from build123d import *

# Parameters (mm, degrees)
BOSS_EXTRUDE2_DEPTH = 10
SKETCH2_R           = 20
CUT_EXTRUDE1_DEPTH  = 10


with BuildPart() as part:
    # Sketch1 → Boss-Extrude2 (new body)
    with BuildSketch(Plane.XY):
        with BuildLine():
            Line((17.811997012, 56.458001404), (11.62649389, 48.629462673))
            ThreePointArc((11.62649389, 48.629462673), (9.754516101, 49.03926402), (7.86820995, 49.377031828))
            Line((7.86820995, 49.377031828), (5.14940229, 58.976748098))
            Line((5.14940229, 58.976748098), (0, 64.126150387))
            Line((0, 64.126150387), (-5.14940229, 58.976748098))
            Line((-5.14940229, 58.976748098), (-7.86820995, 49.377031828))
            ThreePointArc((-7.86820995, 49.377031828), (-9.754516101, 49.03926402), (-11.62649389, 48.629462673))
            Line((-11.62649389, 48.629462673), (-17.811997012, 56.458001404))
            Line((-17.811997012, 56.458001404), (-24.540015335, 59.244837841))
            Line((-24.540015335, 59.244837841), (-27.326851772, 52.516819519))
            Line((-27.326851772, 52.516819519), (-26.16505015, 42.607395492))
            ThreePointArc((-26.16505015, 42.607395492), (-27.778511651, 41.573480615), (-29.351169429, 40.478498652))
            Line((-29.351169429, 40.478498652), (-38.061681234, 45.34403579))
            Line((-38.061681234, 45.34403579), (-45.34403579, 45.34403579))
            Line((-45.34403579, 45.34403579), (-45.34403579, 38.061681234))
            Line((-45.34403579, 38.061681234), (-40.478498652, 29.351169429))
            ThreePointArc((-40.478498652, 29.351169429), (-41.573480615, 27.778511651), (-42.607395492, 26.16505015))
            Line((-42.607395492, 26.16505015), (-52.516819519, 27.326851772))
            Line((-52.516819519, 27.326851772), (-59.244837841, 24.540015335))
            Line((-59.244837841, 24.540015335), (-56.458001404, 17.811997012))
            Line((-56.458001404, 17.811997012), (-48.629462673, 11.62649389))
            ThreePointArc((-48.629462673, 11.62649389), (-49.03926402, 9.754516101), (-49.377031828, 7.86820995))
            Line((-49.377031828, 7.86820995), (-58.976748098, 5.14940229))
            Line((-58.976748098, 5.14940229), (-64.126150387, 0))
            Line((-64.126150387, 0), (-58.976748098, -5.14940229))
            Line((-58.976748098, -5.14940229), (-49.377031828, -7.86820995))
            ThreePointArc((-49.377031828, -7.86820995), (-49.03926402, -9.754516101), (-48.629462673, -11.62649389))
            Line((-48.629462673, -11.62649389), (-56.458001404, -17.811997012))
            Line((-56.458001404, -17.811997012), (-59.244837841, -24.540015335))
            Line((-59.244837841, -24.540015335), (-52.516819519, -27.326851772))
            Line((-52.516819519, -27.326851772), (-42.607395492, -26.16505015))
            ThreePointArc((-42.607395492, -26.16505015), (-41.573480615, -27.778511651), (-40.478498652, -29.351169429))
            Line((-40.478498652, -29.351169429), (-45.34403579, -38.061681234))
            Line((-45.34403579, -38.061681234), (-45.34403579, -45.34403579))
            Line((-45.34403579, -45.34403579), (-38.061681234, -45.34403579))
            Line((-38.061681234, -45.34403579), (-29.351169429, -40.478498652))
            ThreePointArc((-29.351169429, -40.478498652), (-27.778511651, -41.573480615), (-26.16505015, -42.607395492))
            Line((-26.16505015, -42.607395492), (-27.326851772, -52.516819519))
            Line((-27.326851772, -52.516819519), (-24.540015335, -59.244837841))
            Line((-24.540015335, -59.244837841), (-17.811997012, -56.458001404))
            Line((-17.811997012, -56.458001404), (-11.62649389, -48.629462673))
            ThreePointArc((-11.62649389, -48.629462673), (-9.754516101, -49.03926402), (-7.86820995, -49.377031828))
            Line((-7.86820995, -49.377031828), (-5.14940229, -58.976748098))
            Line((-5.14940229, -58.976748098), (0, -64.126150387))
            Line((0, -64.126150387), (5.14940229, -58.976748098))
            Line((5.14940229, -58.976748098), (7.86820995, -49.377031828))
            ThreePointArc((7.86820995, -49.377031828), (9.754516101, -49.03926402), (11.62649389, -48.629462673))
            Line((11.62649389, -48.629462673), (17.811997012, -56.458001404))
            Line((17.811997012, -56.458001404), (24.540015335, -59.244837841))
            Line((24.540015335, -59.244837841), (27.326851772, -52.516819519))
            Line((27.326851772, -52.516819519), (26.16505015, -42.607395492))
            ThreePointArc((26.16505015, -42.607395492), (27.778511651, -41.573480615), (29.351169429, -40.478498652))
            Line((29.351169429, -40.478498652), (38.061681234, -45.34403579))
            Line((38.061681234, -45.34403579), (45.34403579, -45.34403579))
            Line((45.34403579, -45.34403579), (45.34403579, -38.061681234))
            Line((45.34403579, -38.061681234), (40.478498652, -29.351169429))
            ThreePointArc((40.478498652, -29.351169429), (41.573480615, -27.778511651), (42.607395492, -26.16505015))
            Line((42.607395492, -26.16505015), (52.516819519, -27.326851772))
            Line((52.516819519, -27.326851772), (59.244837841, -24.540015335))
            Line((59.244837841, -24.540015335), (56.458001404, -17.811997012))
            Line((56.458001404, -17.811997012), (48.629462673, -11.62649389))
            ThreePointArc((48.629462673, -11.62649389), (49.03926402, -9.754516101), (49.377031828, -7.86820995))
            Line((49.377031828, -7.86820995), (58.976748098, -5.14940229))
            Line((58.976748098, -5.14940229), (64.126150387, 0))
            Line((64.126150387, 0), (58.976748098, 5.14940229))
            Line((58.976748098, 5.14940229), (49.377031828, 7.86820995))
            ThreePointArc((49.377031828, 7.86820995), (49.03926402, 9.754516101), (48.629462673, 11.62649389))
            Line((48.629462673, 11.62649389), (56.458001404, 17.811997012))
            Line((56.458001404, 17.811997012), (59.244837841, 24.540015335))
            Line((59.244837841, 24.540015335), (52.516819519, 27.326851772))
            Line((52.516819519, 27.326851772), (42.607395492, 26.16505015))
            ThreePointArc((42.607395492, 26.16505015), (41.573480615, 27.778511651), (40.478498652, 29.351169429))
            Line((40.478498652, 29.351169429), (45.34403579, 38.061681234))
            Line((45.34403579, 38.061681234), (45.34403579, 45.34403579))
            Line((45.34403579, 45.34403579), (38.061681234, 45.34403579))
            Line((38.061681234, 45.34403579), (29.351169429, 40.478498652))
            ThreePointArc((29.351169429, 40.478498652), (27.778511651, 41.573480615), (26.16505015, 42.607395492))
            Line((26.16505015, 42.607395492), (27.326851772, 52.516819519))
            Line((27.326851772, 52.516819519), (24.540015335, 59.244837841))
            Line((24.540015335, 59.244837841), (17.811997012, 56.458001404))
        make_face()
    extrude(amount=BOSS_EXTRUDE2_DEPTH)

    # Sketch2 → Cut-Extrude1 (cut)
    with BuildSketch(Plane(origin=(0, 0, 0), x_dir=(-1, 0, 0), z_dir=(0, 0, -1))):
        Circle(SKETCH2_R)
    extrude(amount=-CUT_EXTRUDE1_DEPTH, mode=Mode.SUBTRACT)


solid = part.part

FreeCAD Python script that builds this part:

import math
import FreeCAD as App
import Part
import Sketcher
from FreeCAD import Vector
Q = App.Units.Quantity

doc = App.newDocument("Part")
params = doc.addObject("Spreadsheet::Sheet", "Params")
for row, (alias, value) in enumerate([
    ("sketch1_radius", "50 mm"),
    ("pad1_length", "10 mm"),
    ("sketch2_diameter", "40 mm"),
    ("pocket1_length", "10 mm"),
], start=1):
    params.set(f"A{row}", alias)
    params.set(f"B{row}", "=" + value)
    params.setAlias(f"B{row}", alias)

body = doc.addObject("PartDesign::Body", "Body")

sketch1 = body.newObject("Sketcher::SketchObject", "Sketch")
sketch1.AttachmentSupport = (doc.getObject("XY_Plane"), [""])
sketch1.MapMode = "FlatFace"
sketch1.addGeometry([
    Part.LineSegment(Vector(17.8, 56.5, 0), Vector(11.6, 48.6, 0)),
    Part.ArcOfCircle(Part.Circle(Vector(0, 0, 0), Vector(0, 0, 1), 50), math.radians(76.55), math.radians(80.95)),
    Part.LineSegment(Vector(7.9, 49.4, 0), Vector(5.1, 59, 0)),
    Part.LineSegment(Vector(5.1, 59, 0), Vector(0, 64.1, 0)),
    Part.LineSegment(Vector(0, 64.1, 0), Vector(-5.1, 59, 0)),
    Part.LineSegment(Vector(-5.1, 59, 0), Vector(-7.9, 49.4, 0)),
    Part.ArcOfCircle(Part.Circle(Vector(0, 0, 0), Vector(0, 0, 1), 50), math.radians(99.05), math.radians(103.45)),
    Part.LineSegment(Vector(-11.6, 48.6, 0), Vector(-17.8, 56.5, 0)),
    Part.LineSegment(Vector(-17.8, 56.5, 0), Vector(-24.5, 59.2, 0)),
    Part.LineSegment(Vector(-24.5, 59.2, 0), Vector(-27.3, 52.5, 0)),
    Part.LineSegment(Vector(-27.3, 52.5, 0), Vector(-26.2, 42.6, 0)),
    Part.ArcOfCircle(Part.Circle(Vector(0, 0, 0), Vector(0, 0, 1), 50), math.radians(121.55), math.radians(125.95)),
    Part.LineSegment(Vector(-29.4, 40.5, 0), Vector(-38.1, 45.3, 0)),
    Part.LineSegment(Vector(-38.1, 45.3, 0), Vector(-45.3, 45.3, 0)),
    Part.LineSegment(Vector(-45.3, 45.3, 0), Vector(-45.3, 38.1, 0)),
    Part.LineSegment(Vector(-45.3, 38.1, 0), Vector(-40.5, 29.4, 0)),
    Part.ArcOfCircle(Part.Circle(Vector(0, 0, 0), Vector(0, 0, 1), 50), math.radians(144.05), math.radians(148.45)),
    Part.LineSegment(Vector(-42.6, 26.2, 0), Vector(-52.5, 27.3, 0)),
    Part.LineSegment(Vector(-52.5, 27.3, 0), Vector(-59.2, 24.5, 0)),
    Part.LineSegment(Vector(-59.2, 24.5, 0), Vector(-56.5, 17.8, 0)),
    Part.LineSegment(Vector(-56.5, 17.8, 0), Vector(-48.6, 11.6, 0)),
    Part.ArcOfCircle(Part.Circle(Vector(0, 0, 0), Vector(0, 0, 1), 50), math.radians(166.55), math.radians(170.95)),
    Part.LineSegment(Vector(-49.4, 7.9, 0), Vector(-59, 5.1, 0)),
    Part.LineSegment(Vector(-59, 5.1, 0), Vector(-64.1, 0, 0)),
    Part.LineSegment(Vector(-64.1, 0, 0), Vector(-59, -5.1, 0)),
    Part.LineSegment(Vector(-59, -5.1, 0), Vector(-49.4, -7.9, 0)),
    Part.ArcOfCircle(Part.Circle(Vector(0, 0, 0), Vector(0, 0, 1), 50), math.radians(-170.95), math.radians(-166.55)),
    Part.LineSegment(Vector(-48.6, -11.6, 0), Vector(-56.5, -17.8, 0)),
    Part.LineSegment(Vector(-56.5, -17.8, 0), Vector(-59.2, -24.5, 0)),
    Part.LineSegment(Vector(-59.2, -24.5, 0), Vector(-52.5, -27.3, 0)),
    Part.LineSegment(Vector(-52.5, -27.3, 0), Vector(-42.6, -26.2, 0)),
    Part.ArcOfCircle(Part.Circle(Vector(0, 0, 0), Vector(0, 0, 1), 50), math.radians(-148.45), math.radians(-144.05)),
    Part.LineSegment(Vector(-40.5, -29.4, 0), Vector(-45.3, -38.1, 0)),
    Part.LineSegment(Vector(-45.3, -38.1, 0), Vector(-45.3, -45.3, 0)),
    Part.LineSegment(Vector(-45.3, -45.3, 0), Vector(-38.1, -45.3, 0)),
    Part.LineSegment(Vector(-38.1, -45.3, 0), Vector(-29.4, -40.5, 0)),
    Part.ArcOfCircle(Part.Circle(Vector(0, 0, 0), Vector(0, 0, 1), 50), math.radians(-125.95), math.radians(-121.55)),
    Part.LineSegment(Vector(-26.2, -42.6, 0), Vector(-27.3, -52.5, 0)),
    Part.LineSegment(Vector(-27.3, -52.5, 0), Vector(-24.5, -59.2, 0)),
    Part.LineSegment(Vector(-24.5, -59.2, 0), Vector(-17.8, -56.5, 0)),
    Part.LineSegment(Vector(-17.8, -56.5, 0), Vector(-11.6, -48.6, 0)),
    Part.ArcOfCircle(Part.Circle(Vector(0, 0, 0), Vector(0, 0, 1), 50), math.radians(-103.45), math.radians(-99.05)),
    Part.LineSegment(Vector(-7.9, -49.4, 0), Vector(-5.1, -59, 0)),
    Part.LineSegment(Vector(-5.1, -59, 0), Vector(0, -64.1, 0)),
    Part.LineSegment(Vector(0, -64.1, 0), Vector(5.1, -59, 0)),
    Part.LineSegment(Vector(5.1, -59, 0), Vector(7.9, -49.4, 0)),
    Part.ArcOfCircle(Part.Circle(Vector(0, 0, 0), Vector(0, 0, 1), 50), math.radians(-80.95), math.radians(-76.55)),
    Part.LineSegment(Vector(11.6, -48.6, 0), Vector(17.8, -56.5, 0)),
    Part.LineSegment(Vector(17.8, -56.5, 0), Vector(24.5, -59.2, 0)),
    Part.LineSegment(Vector(24.5, -59.2, 0), Vector(27.3, -52.5, 0)),
    Part.LineSegment(Vector(27.3, -52.5, 0), Vector(26.2, -42.6, 0)),
    Part.ArcOfCircle(Part.Circle(Vector(0, 0, 0), Vector(0, 0, 1), 50), math.radians(-58.45), math.radians(-54.05)),
    Part.LineSegment(Vector(29.4, -40.5, 0), Vector(38.1, -45.3, 0)),
    Part.LineSegment(Vector(38.1, -45.3, 0), Vector(45.3, -45.3, 0)),
    Part.LineSegment(Vector(45.3, -45.3, 0), Vector(45.3, -38.1, 0)),
    Part.LineSegment(Vector(45.3, -38.1, 0), Vector(40.5, -29.4, 0)),
    Part.ArcOfCircle(Part.Circle(Vector(0, 0, 0), Vector(0, 0, 1), 50), math.radians(-35.95), math.radians(-31.55)),
    Part.LineSegment(Vector(42.6, -26.2, 0), Vector(52.5, -27.3, 0)),
    Part.LineSegment(Vector(52.5, -27.3, 0), Vector(59.2, -24.5, 0)),
    Part.LineSegment(Vector(59.2, -24.5, 0), Vector(56.5, -17.8, 0)),
    Part.LineSegment(Vector(56.5, -17.8, 0), Vector(48.6, -11.6, 0)),
    Part.ArcOfCircle(Part.Circle(Vector(0, 0, 0), Vector(0, 0, 1), 50), math.radians(-13.45), math.radians(-9.05)),
    Part.LineSegment(Vector(49.4, -7.9, 0), Vector(59, -5.1, 0)),
    Part.LineSegment(Vector(59, -5.1, 0), Vector(64.1, 0, 0)),
    Part.LineSegment(Vector(64.1, 0, 0), Vector(59, 5.1, 0)),
    Part.LineSegment(Vector(59, 5.1, 0), Vector(49.4, 7.9, 0)),
    Part.ArcOfCircle(Part.Circle(Vector(0, 0, 0), Vector(0, 0, 1), 50), math.radians(9.05), math.radians(13.45)),
    Part.LineSegment(Vector(48.6, 11.6, 0), Vector(56.5, 17.8, 0)),
    Part.LineSegment(Vector(56.5, 17.8, 0), Vector(59.2, 24.5, 0)),
    Part.LineSegment(Vector(59.2, 24.5, 0), Vector(52.5, 27.3, 0)),
    Part.LineSegment(Vector(52.5, 27.3, 0), Vector(42.6, 26.2, 0)),
    Part.ArcOfCircle(Part.Circle(Vector(0, 0, 0), Vector(0, 0, 1), 50), math.radians(31.55), math.radians(35.95)),
    Part.LineSegment(Vector(40.5, 29.4, 0), Vector(45.3, 38.1, 0)),
    Part.LineSegment(Vector(45.3, 38.1, 0), Vector(45.3, 45.3, 0)),
    Part.LineSegment(Vector(45.3, 45.3, 0), Vector(38.1, 45.3, 0)),
    Part.LineSegment(Vector(38.1, 45.3, 0), Vector(29.4, 40.5, 0)),
    Part.ArcOfCircle(Part.Circle(Vector(0, 0, 0), Vector(0, 0, 1), 50), math.radians(54.05), math.radians(58.45)),
    Part.LineSegment(Vector(26.2, 42.6, 0), Vector(27.3, 52.5, 0)),
    Part.LineSegment(Vector(27.3, 52.5, 0), Vector(24.5, 59.2, 0)),
    Part.LineSegment(Vector(24.5, 59.2, 0), Vector(17.8, 56.5, 0)),
], False)
sketch1.addConstraint([
    Sketcher.Constraint("Coincident", 0, 2, 1, 1),
    Sketcher.Constraint("Coincident", 1, 2, 2, 1),
    Sketcher.Constraint("Coincident", 2, 2, 3, 1),
    Sketcher.Constraint("Coincident", 3, 2, 4, 1),
    Sketcher.Constraint("Coincident", 4, 2, 5, 1),
    Sketcher.Constraint("Coincident", 5, 2, 6, 1),
    Sketcher.Constraint("Coincident", 6, 2, 7, 1),
    Sketcher.Constraint("Coincident", 7, 2, 8, 1),
    Sketcher.Constraint("Coincident", 8, 2, 9, 1),
    Sketcher.Constraint("Coincident", 9, 2, 10, 1),
    Sketcher.Constraint("Coincident", 10, 2, 11, 1),
    Sketcher.Constraint("Coincident", 11, 2, 12, 1),
    Sketcher.Constraint("Coincident", 12, 2, 13, 1),
    Sketcher.Constraint("Coincident", 13, 2, 14, 1),
    Sketcher.Constraint("Coincident", 14, 2, 15, 1),
    Sketcher.Constraint("Coincident", 15, 2, 16, 1),
    Sketcher.Constraint("Coincident", 16, 2, 17, 1),
    Sketcher.Constraint("Coincident", 17, 2, 18, 1),
    Sketcher.Constraint("Coincident", 18, 2, 19, 1),
    Sketcher.Constraint("Coincident", 19, 2, 20, 1),
    Sketcher.Constraint("Coincident", 20, 2, 21, 1),
    Sketcher.Constraint("Coincident", 21, 2, 22, 1),
    Sketcher.Constraint("Coincident", 22, 2, 23, 1),
    Sketcher.Constraint("Coincident", 23, 2, 24, 1),
    Sketcher.Constraint("Coincident", 24, 2, 25, 1),
    Sketcher.Constraint("Coincident", 25, 2, 26, 1),
    Sketcher.Constraint("Coincident", 26, 2, 27, 1),
    Sketcher.Constraint("Coincident", 27, 2, 28, 1),
    Sketcher.Constraint("Coincident", 28, 2, 29, 1),
    Sketcher.Constraint("Coincident", 29, 2, 30, 1),
    Sketcher.Constraint("Coincident", 30, 2, 31, 1),
    Sketcher.Constraint("Coincident", 31, 2, 32, 1),
    Sketcher.Constraint("Coincident", 32, 2, 33, 1),
    Sketcher.Constraint("Coincident", 33, 2, 34, 1),
    Sketcher.Constraint("Coincident", 34, 2, 35, 1),
    Sketcher.Constraint("Coincident", 35, 2, 36, 1),
    Sketcher.Constraint("Coincident", 36, 2, 37, 1),
    Sketcher.Constraint("Coincident", 37, 2, 38, 1),
    Sketcher.Constraint("Coincident", 38, 2, 39, 1),
    Sketcher.Constraint("Coincident", 39, 2, 40, 1),
    Sketcher.Constraint("Coincident", 40, 2, 41, 1),
    Sketcher.Constraint("Coincident", 41, 2, 42, 1),
    Sketcher.Constraint("Coincident", 42, 2, 43, 1),
    Sketcher.Constraint("Coincident", 43, 2, 44, 1),
    Sketcher.Constraint("Coincident", 44, 2, 45, 1),
    Sketcher.Constraint("Coincident", 45, 2, 46, 1),
    Sketcher.Constraint("Coincident", 46, 2, 47, 1),
    Sketcher.Constraint("Coincident", 47, 2, 48, 1),
    Sketcher.Constraint("Coincident", 48, 2, 49, 1),
    Sketcher.Constraint("Coincident", 49, 2, 50, 1),
    Sketcher.Constraint("Coincident", 50, 2, 51, 1),
    Sketcher.Constraint("Coincident", 51, 2, 52, 1),
    Sketcher.Constraint("Coincident", 52, 2, 53, 1),
    Sketcher.Constraint("Coincident", 53, 2, 54, 1),
    Sketcher.Constraint("Coincident", 54, 2, 55, 1),
    Sketcher.Constraint("Coincident", 55, 2, 56, 1),
    Sketcher.Constraint("Coincident", 56, 2, 57, 1),
    Sketcher.Constraint("Coincident", 57, 2, 58, 1),
    Sketcher.Constraint("Coincident", 58, 2, 59, 1),
    Sketcher.Constraint("Coincident", 59, 2, 60, 1),
    Sketcher.Constraint("Coincident", 60, 2, 61, 1),
    Sketcher.Constraint("Coincident", 61, 2, 62, 1),
    Sketcher.Constraint("Coincident", 62, 2, 63, 1),
    Sketcher.Constraint("Coincident", 63, 2, 64, 1),
    Sketcher.Constraint("Coincident", 64, 2, 65, 1),
    Sketcher.Constraint("Coincident", 65, 2, 66, 1),
    Sketcher.Constraint("Coincident", 66, 2, 67, 1),
    Sketcher.Constraint("Coincident", 67, 2, 68, 1),
    Sketcher.Constraint("Coincident", 68, 2, 69, 1),
    Sketcher.Constraint("Coincident", 69, 2, 70, 1),
    Sketcher.Constraint("Coincident", 70, 2, 71, 1),
    Sketcher.Constraint("Coincident", 71, 2, 72, 1),
    Sketcher.Constraint("Coincident", 72, 2, 73, 1),
    Sketcher.Constraint("Coincident", 73, 2, 74, 1),
    Sketcher.Constraint("Coincident", 74, 2, 75, 1),
    Sketcher.Constraint("Coincident", 75, 2, 76, 1),
    Sketcher.Constraint("Coincident", 76, 2, 77, 1),
    Sketcher.Constraint("Coincident", 77, 2, 78, 1),
    Sketcher.Constraint("Coincident", 78, 2, 79, 1),
    Sketcher.Constraint("Coincident", 79, 2, 0, 1),
    Sketcher.Constraint("Horizontal", 13),
    Sketcher.Constraint("Vertical", 14),
    Sketcher.Constraint("Vertical", 33),
    Sketcher.Constraint("Horizontal", 34),
    Sketcher.Constraint("Horizontal", 53),
    Sketcher.Constraint("Vertical", 54),
    Sketcher.Constraint("Vertical", 73),
    Sketcher.Constraint("Horizontal", 74),
    Sketcher.Constraint("Coincident", 1, 3, -1, 1),
    Sketcher.Constraint("Coincident", 6, 3, -1, 1),
    Sketcher.Constraint("Coincident", 11, 3, -1, 1),
    Sketcher.Constraint("Coincident", 16, 3, -1, 1),
    Sketcher.Constraint("Coincident", 21, 3, -1, 1),
    Sketcher.Constraint("Coincident", 26, 3, -1, 1),
    Sketcher.Constraint("Coincident", 31, 3, -1, 1),
    Sketcher.Constraint("Coincident", 36, 3, -1, 1),
    Sketcher.Constraint("Coincident", 41, 3, -1, 1),
    Sketcher.Constraint("Coincident", 46, 3, -1, 1),
    Sketcher.Constraint("Coincident", 51, 3, -1, 1),
    Sketcher.Constraint("Coincident", 56, 3, -1, 1),
    Sketcher.Constraint("Coincident", 61, 3, -1, 1),
    Sketcher.Constraint("Coincident", 66, 3, -1, 1),
    Sketcher.Constraint("Coincident", 71, 3, -1, 1),
    Sketcher.Constraint("Coincident", 76, 3, -1, 1),
    Sketcher.Constraint("Equal", 1, 6),
    Sketcher.Constraint("Equal", 6, 11),
    Sketcher.Constraint("Equal", 11, 16),
    Sketcher.Constraint("Equal", 16, 21),
    Sketcher.Constraint("Equal", 21, 26),
    Sketcher.Constraint("Equal", 26, 31),
    Sketcher.Constraint("Equal", 31, 36),
    Sketcher.Constraint("Equal", 36, 41),
    Sketcher.Constraint("Equal", 41, 46),
    Sketcher.Constraint("Equal", 46, 51),
    Sketcher.Constraint("Equal", 51, 56),
    Sketcher.Constraint("Equal", 56, 61),
    Sketcher.Constraint("Equal", 61, 66),
    Sketcher.Constraint("Equal", 66, 71),
    Sketcher.Constraint("Equal", 71, 76),
    Sketcher.Constraint("Symmetric", 2, 2, 42, 2, -1, 1),
    Sketcher.Constraint("Symmetric", 3, 2, 43, 2, -1, 1),
    Sketcher.Constraint("Symmetric", 4, 2, 44, 2, -1, 1),
    Sketcher.Constraint("Symmetric", 7, 2, 47, 2, -1, 1),
    Sketcher.Constraint("Symmetric", 8, 2, 48, 2, -1, 1),
    Sketcher.Constraint("Symmetric", 9, 2, 49, 2, -1, 1),
    Sketcher.Constraint("Symmetric", 12, 2, 52, 2, -1, 1),
    Sketcher.Constraint("Symmetric", 14, 2, 54, 2, -1, 1),
    Sketcher.Constraint("Symmetric", 17, 2, 57, 2, -1, 1),
    Sketcher.Constraint("Symmetric", 18, 2, 58, 2, -1, 1),
    Sketcher.Constraint("Symmetric", 19, 2, 59, 2, -1, 1),
    Sketcher.Constraint("Symmetric", 22, 2, 62, 2, -1, 1),
    Sketcher.Constraint("Symmetric", 23, 2, 63, 2, -1, 1),
    Sketcher.Constraint("Symmetric", 24, 2, 64, 2, -1, 1),
    Sketcher.Constraint("Symmetric", 27, 2, 67, 2, -1, 1),
    Sketcher.Constraint("Symmetric", 28, 2, 68, 2, -1, 1),
    Sketcher.Constraint("Symmetric", 29, 2, 69, 2, -1, 1),
    Sketcher.Constraint("Symmetric", 32, 2, 72, 2, -1, 1),
    Sketcher.Constraint("Symmetric", 34, 2, 74, 2, -1, 1),
    Sketcher.Constraint("Symmetric", 37, 2, 77, 2, -1, 1),
    Sketcher.Constraint("Symmetric", 38, 2, 78, 2, -1, 1),
    Sketcher.Constraint("Symmetric", 39, 2, 79, 2, -1, 1),
    Sketcher.Constraint("Symmetric", 2, 2, 4, 2, -2),
    Sketcher.Constraint("Symmetric", 39, 2, 47, 2, -2),
    Sketcher.Constraint("Symmetric", 38, 2, 48, 2, -2),
    Sketcher.Constraint("Symmetric", 37, 2, 49, 2, -2),
    Sketcher.Constraint("Symmetric", 34, 2, 52, 2, -2),
    Sketcher.Constraint("Symmetric", 32, 2, 54, 2, -2),
    Sketcher.Constraint("Symmetric", 29, 2, 57, 2, -2),
    Sketcher.Constraint("Symmetric", 28, 2, 58, 2, -2),
    Sketcher.Constraint("Symmetric", 27, 2, 59, 2, -2),
    Sketcher.Constraint("Symmetric", 24, 2, 62, 2, -2),
    Sketcher.Constraint("PointOnObject", 3, 2, -2),
    Sketcher.Constraint("PointOnObject", 23, 2, -1),
    Sketcher.Constraint("Perpendicular", 3, 4),
    Sketcher.Constraint("Perpendicular", 8, 9),
    Sketcher.Constraint("Perpendicular", 18, 19),
    Sketcher.Constraint("Perpendicular", 0, 20),
    Sketcher.Constraint("Perpendicular", 2, 22),
    Sketcher.Constraint("Parallel", 4, 23),
    Sketcher.Constraint("Perpendicular", 5, 25),
    Sketcher.Constraint("Perpendicular", 7, 27),
    Sketcher.Constraint("Parallel", 9, 28),
    Sketcher.Constraint("Perpendicular", 10, 30),
    Sketcher.Constraint("Perpendicular", 12, 32),
    Sketcher.Constraint("Perpendicular", 15, 35),
    Sketcher.Constraint("Perpendicular", 17, 37),
    Sketcher.Constraint("Perpendicular", 20, 40),
    Sketcher.Constraint("Perpendicular", 22, 42),
    Sketcher.Constraint("Perpendicular", 25, 45),
    Sketcher.Constraint("Perpendicular", 27, 47),
    Sketcher.Constraint("Perpendicular", 30, 50),
    Sketcher.Constraint("Perpendicular", 32, 52),
    Sketcher.Constraint("Perpendicular", 35, 55),
    Sketcher.Constraint("Perpendicular", 37, 57),
    Sketcher.Constraint("Perpendicular", 40, 60),
    Sketcher.Constraint("Perpendicular", 42, 62),
    Sketcher.Constraint("Perpendicular", 45, 65),
    Sketcher.Constraint("Perpendicular", 47, 67),
    Sketcher.Constraint("Perpendicular", 50, 70),
    Sketcher.Constraint("Perpendicular", 52, 72),
    Sketcher.Constraint("Perpendicular", 55, 75),
    Sketcher.Constraint("Perpendicular", 57, 77),
    Sketcher.Constraint("Horizontal", 1, 2, 5, 2),
    Sketcher.Constraint("Horizontal", 0, 2, 6, 2),
    Sketcher.Constraint("Horizontal", 36, 2, 50, 2),
    Sketcher.Constraint("Horizontal", 35, 2, 51, 2),
    Sketcher.Constraint("Equal", 74, 14),
    Sketcher.Constraint("Equal", 0, 2),
    Sketcher.Constraint("Equal", 4, 8),
    Sketcher.Constraint("Equal", 8, 9),
    Sketcher.Constraint("Equal", 7, 10),
    Sketcher.Constraint("Equal", 10, 12),
    Sketcher.Constraint("Equal", 12, 15),
    Sketcher.Constraint("Equal", 15, 17),
    Sketcher.Constraint("Equal", 9, 18),
    Sketcher.Constraint("Equal", 18, 19),
    Sketcher.Constraint("Equal", 17, 20),
    Sketcher.Constraint("Equal", 20, 22),
    Sketcher.Constraint("Equal", 19, 23),
    Sketcher.Constraint("Radius", 1, 50.0),
    Sketcher.Constraint("Angle", 8, Q("157.5 deg")),
    Sketcher.Constraint("DistanceY", -1, 1, 7, 2, 56.458001),
    Sketcher.Constraint("DistanceY", -1, 1, 11, 2, 40.478499),
    Sketcher.Constraint("DistanceX", 13, 2, 13, 1, 7.282355),
    Sketcher.Constraint("DistanceX", -1, 1, 1, 2, 7.86821),
    Sketcher.Constraint("DistanceY", -1, 1, 2, 2, 58.976748),
    Sketcher.Constraint("DistanceY", -1, 1, 3, 2, 64.12615),
    Sketcher.Constraint("DistanceX", 9, 2, -1, 1, 27.326852),
])
sketch1.setExpression("Constraints[199]", "Params.sketch1_radius")
pad1 = body.newObject("PartDesign::Pad", "Pad")
pad1.Profile = sketch1
pad1.setExpression("Length", "Params.pad1_length")

sketch2 = body.newObject("Sketcher::SketchObject", "Sketch001")
sketch2.AttachmentSupport = (doc.getObject("XY_Plane"), [""])
sketch2.MapMode = "FlatFace"
sketch2.addGeometry(Part.Circle(Vector(0, 0, 0), Vector(0, 0, 1), 20), False)
sketch2.addConstraint([
    Sketcher.Constraint("Coincident", 0, 3, -1, 1),
    Sketcher.Constraint("Diameter", 0, 40.0),
])
sketch2.setExpression("Constraints[1]", "Params.sketch2_diameter")
pocket1 = body.newObject("PartDesign::Pocket", "Pocket")
pocket1.Profile = sketch2
pocket1.setExpression("Length", "Params.pocket1_length")
pocket1.Reversed = True

doc.recompute()
